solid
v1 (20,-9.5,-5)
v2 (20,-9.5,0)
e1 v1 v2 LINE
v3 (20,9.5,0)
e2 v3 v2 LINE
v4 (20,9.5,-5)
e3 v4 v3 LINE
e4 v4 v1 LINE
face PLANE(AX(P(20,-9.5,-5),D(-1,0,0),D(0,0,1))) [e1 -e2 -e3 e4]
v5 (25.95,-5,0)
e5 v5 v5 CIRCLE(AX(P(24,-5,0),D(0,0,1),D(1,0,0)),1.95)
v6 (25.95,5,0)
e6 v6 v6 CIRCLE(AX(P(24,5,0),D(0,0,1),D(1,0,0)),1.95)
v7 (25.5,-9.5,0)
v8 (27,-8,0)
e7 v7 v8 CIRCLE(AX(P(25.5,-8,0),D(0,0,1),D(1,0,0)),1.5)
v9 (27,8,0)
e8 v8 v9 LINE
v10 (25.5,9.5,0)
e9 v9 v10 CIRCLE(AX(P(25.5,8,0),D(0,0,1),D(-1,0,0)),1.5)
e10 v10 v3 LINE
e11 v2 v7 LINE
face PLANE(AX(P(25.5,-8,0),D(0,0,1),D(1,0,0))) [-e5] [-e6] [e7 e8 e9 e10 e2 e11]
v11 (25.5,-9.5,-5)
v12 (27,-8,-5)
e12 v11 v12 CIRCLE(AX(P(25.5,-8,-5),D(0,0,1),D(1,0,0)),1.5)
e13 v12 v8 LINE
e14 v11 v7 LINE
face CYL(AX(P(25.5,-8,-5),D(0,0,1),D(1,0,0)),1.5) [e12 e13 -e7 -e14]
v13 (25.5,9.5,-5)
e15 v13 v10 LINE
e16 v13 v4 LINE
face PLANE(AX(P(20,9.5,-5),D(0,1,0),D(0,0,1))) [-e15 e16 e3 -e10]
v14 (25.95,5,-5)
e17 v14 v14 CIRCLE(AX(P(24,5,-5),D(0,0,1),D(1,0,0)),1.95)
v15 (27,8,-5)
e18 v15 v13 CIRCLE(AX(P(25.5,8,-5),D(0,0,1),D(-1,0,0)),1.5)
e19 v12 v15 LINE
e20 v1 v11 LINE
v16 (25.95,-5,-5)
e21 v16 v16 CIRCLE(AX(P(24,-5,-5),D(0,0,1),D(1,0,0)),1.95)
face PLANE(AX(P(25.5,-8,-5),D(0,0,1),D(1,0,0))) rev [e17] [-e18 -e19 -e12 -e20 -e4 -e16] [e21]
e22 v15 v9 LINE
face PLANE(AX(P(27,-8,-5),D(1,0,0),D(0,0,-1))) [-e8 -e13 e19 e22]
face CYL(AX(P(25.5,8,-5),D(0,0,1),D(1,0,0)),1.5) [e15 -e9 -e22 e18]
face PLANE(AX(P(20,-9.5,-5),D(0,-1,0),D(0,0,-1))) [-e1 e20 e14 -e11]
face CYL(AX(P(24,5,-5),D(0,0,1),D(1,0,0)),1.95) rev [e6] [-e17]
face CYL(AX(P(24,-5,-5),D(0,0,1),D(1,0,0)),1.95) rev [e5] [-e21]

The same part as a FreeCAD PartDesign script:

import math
import FreeCAD as App
import Part
import Sketcher

V = App.Vector

doc = App.newDocument("Part")
body = doc.addObject("PartDesign::Body", "Body")

# Sketch on XY plane
sketch1 = doc.addObject("Sketcher::SketchObject", "Sketch")
body.addObject(sketch1)
sketch1.AttachmentSupport = (doc.XY_Plane, [""])
sketch1.MapMode = "FlatFace"
sketch1.addGeometry([
    Part.LineSegment(V(20, 9.5, 0), V(20, -9.5, 0)),  # 0
    Part.LineSegment(V(20, -9.5, 0), V(25.5, -9.5, 0)),  # 1
    Part.ArcOfCircle(Part.Circle(V(25.5, -8, 0), V(0, 0, 1), 1.5), math.radians(-90), math.radians(0)),  # 2
    Part.LineSegment(V(27, -8, 0), V(27, 8, 0)),  # 3
    Part.ArcOfCircle(Part.Circle(V(25.5, 8, 0), V(0, 0, 1), 1.5), math.radians(0), math.radians(90)),  # 4
    Part.LineSegment(V(25.5, 9.5, 0), V(20, 9.5, 0)),  # 5
    Part.Circle(V(24, -5, 0), V(0, 0, 1), 1.9),  # 6
    Part.Circle(V(24, 5, 0), V(0, 0, 1), 1.9),  # 7
], False)
sketch1.addConstraint([
    Sketcher.Constraint("Coincident", 0, 2, 1, 1),
    Sketcher.Constraint("Tangent", 1, 2, 2, 1),
    Sketcher.Constraint("Tangent", 2, 2, 3, 1),
    Sketcher.Constraint("Tangent", 3, 2, 4, 1),
    Sketcher.Constraint("Tangent", 4, 2, 5, 1),
    Sketcher.Constraint("Coincident", 5, 2, 0, 1),
    Sketcher.Constraint("Vertical", 0),
    Sketcher.Constraint("Horizontal", 1),
    Sketcher.Constraint("Vertical", 3),
    Sketcher.Constraint("Horizontal", 5),
    Sketcher.Constraint("Equal", 2, 4),
    Sketcher.Constraint("Equal", 6, 7),
    Sketcher.Constraint("Symmetric", 6, 3, 7, 3, -1),
    Sketcher.Constraint("Diameter", 6, 3.9),
    Sketcher.Constraint("Radius", 2, 1.5),
    Sketcher.Constraint("DistanceY", 0, 2, 0, 1, 19.0),
    Sketcher.Constraint("DistanceX", 1, 1, 1, 2, 5.5),
    Sketcher.Constraint("DistanceY", 2, 3, -1, 1, 8.0),
    Sketcher.Constraint("DistanceX", -1, 1, 6, 3, 24.0),
    Sketcher.Constraint("DistanceY", 6, 3, -1, 1, 5.0),
    Sketcher.Constraint("DistanceX", -1, 1, 0, 2, 20.0),
])
pad1 = doc.addObject("PartDesign::Pad", "Pad")
body.addObject(pad1)
pad1.Profile = sketch1
pad1.Length = 5
pad1.Reversed = True

doc.recompute()
